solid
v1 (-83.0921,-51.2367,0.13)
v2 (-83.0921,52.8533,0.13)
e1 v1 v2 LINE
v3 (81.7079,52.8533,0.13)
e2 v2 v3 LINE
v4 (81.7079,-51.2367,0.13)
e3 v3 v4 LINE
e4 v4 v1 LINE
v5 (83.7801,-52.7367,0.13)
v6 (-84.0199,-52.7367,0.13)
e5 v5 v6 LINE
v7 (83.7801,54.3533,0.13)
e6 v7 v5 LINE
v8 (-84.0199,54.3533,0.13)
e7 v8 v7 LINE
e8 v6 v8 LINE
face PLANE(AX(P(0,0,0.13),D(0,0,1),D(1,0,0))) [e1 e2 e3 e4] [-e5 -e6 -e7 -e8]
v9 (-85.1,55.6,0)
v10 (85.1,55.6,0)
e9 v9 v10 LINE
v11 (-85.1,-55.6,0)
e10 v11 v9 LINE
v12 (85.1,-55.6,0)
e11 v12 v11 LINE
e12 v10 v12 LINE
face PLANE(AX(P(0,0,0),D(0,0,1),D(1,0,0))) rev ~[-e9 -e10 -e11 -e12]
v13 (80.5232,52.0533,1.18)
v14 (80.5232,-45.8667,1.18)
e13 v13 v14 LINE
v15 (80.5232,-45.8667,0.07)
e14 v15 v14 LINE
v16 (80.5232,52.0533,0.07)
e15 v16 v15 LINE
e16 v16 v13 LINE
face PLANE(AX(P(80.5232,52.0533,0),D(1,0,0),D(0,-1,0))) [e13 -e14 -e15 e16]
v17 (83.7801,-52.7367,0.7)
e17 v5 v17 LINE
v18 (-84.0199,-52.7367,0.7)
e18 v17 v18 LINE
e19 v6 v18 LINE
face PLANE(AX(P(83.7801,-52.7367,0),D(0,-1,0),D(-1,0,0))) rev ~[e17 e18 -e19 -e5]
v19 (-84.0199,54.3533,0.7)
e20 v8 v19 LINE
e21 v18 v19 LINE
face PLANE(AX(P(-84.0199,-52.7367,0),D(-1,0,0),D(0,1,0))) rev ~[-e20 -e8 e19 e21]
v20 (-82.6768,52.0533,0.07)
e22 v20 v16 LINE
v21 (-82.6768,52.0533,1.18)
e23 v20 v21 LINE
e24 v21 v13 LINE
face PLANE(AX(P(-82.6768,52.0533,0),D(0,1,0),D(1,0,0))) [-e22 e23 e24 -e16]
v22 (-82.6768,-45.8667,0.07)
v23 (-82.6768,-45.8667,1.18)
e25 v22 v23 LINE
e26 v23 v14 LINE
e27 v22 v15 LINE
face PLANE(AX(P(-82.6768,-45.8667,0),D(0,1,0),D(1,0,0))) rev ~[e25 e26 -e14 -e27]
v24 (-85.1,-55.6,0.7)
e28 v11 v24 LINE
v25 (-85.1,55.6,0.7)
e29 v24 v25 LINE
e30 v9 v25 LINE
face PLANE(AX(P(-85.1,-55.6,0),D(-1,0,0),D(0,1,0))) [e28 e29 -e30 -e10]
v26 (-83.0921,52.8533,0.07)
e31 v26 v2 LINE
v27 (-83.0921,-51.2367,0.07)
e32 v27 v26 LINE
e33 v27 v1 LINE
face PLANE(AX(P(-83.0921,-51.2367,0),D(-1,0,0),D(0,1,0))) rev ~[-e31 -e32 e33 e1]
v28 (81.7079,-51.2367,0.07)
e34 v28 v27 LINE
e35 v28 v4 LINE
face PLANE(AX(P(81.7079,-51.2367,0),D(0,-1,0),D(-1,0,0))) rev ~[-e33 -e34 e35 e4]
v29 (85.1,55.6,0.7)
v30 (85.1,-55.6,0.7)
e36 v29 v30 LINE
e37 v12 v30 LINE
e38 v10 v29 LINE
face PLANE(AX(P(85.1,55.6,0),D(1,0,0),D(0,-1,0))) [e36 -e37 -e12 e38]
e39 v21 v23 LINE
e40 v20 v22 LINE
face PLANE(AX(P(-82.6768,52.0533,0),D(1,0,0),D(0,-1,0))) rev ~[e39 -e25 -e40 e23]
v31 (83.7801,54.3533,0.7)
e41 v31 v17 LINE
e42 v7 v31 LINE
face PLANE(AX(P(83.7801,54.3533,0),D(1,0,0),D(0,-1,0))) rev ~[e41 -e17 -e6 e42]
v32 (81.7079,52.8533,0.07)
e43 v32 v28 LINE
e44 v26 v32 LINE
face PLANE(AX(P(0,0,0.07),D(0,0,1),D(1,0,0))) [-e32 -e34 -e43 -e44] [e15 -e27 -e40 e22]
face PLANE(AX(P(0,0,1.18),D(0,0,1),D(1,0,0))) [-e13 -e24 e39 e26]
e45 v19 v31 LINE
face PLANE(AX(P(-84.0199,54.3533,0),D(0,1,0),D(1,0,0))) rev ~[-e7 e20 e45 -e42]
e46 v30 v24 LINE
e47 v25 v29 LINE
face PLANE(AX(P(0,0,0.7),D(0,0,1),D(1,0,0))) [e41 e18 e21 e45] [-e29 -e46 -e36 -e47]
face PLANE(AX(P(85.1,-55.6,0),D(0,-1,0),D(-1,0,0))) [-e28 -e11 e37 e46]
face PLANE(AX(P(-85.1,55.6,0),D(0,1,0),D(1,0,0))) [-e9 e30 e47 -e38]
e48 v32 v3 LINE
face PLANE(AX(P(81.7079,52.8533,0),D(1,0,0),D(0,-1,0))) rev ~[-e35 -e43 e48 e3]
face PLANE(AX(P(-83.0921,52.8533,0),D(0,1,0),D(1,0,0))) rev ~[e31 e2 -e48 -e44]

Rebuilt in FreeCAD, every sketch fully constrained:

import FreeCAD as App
import Part
import Sketcher

V = App.Vector


def add_polygon(sketch, points):
    """Adds a closed chain of lines whose ends are joined by coincident constraints."""
    first, n = sketch.GeometryCount, len(points)
    for a, b in zip(points, points[1:] + points[:1]):
        sketch.addGeometry(Part.LineSegment(App.Vector(*a, 0), App.Vector(*b, 0)), False)
    for i in range(n):
        sketch.addConstraint(Sketcher.Constraint("Coincident", first + i, 2, first + (i + 1) % n, 1))

doc = App.newDocument("Part")
body = doc.addObject("PartDesign::Body", "Body")

# Sketch on XY plane
sketch1 = body.newObject("Sketcher::SketchObject", "Sketch")
sketch1.AttachmentSupport = (doc.getObject("XY_Plane"), [""])
sketch1.MapMode = "FlatFace"
add_polygon(sketch1, [(85, 56), (-85, 56), (-85, -56), (85, -56)])  # lines 0-3
add_polygon(sketch1, [(-84, -53), (-84, 54), (84, 54), (84, -53)])  # lines 4-7
sketch1.addConstraint([
    Sketcher.Constraint("Horizontal", 0),
    Sketcher.Constraint("Vertical", 1),
    Sketcher.Constraint("Horizontal", 2),
    Sketcher.Constraint("Vertical", 3),
    Sketcher.Constraint("Vertical", 4),
    Sketcher.Constraint("Horizontal", 5),
    Sketcher.Constraint("Vertical", 6),
    Sketcher.Constraint("Horizontal", 7),
    Sketcher.Constraint("Symmetric", 0, 2, 2, 2, -1, 1),
    Sketcher.Constraint("DistanceX", 0, 2, 0, 1, 170.2),
    Sketcher.Constraint("DistanceY", 1, 2, 1, 1, 111.2),
    Sketcher.Constraint("DistanceY", 4, 1, 4, 2, 107.09),
    Sketcher.Constraint("DistanceX", 5, 1, 5, 2, 167.8),
    Sketcher.Constraint("DistanceX", 4, 2, -1, 1, 84.02),
    Sketcher.Constraint("DistanceY", -1, 1, 4, 2, 54.3533),
])
pad1 = body.newObject("PartDesign::Pad", "Pad")
pad1.Profile = sketch1
pad1.Length = 0.7

# Sketch on XY plane
sketch2 = body.newObject("Sketcher::SketchObject", "Sketch001")
sketch2.AttachmentSupport = (doc.getObject("XY_Plane"), [""])
sketch2.MapMode = "FlatFace"
add_polygon(sketch2, [(84, 54), (-84, 54), (-84, -53), (84, -53)])  # lines 0-3
add_polygon(sketch2, [(-83, -51), (-83, 53), (82, 53), (82, -51)])  # lines 4-7
sketch2.addConstraint([
    Sketcher.Constraint("Horizontal", 0),
    Sketcher.Constraint("Vertical", 1),
    Sketcher.Constraint("Horizontal", 2),
    Sketcher.Constraint("Vertical", 3),
    Sketcher.Constraint("Vertical", 4),
    Sketcher.Constraint("Horizontal", 5),
    Sketcher.Constraint("Vertical", 6),
    Sketcher.Constraint("Horizontal", 7),
    Sketcher.Constraint("DistanceX", 5, 1, 5, 2, 164.8),
    Sketcher.Constraint("DistanceY", 1, 2, 1, 1, 107.09),
    Sketcher.Constraint("DistanceY", 4, 1, 4, 2, 104.09),
    Sketcher.Constraint("DistanceX", 0, 2, 0, 1, 167.8),
    Sketcher.Constraint("DistanceY", 4, 2, 0, 2, 1.5),
    Sketcher.Constraint("DistanceX", 0, 2, -1, 1, 84.02),
    Sketcher.Constraint("DistanceX", 4, 2, -1, 1, 83.092),
    Sketcher.Constraint("DistanceY", -1, 1, 0, 2, 54.3533),
])
pad2 = body.newObject("PartDesign::Pad", "Pad001")
pad2.Profile = sketch2
pad2.Length = 0.13

# Sketch on XY plane
sketch3 = body.newObject("Sketcher::SketchObject", "Sketch002")
sketch3.AttachmentSupport = (doc.getObject("XY_Plane"), [""])
sketch3.MapMode = "FlatFace"
add_polygon(sketch3, [(82, 53), (-83, 53), (-83, -51), (82, -51)])  # lines 0-3
add_polygon(sketch3, [(-83, -46), (-83, 52), (81, 52), (81, -46)])  # lines 4-7
sketch3.addConstraint([
    Sketcher.Constraint("Horizontal", 0),
    Sketcher.Constraint("Vertical", 1),
    Sketcher.Constraint("Horizontal", 2),
    Sketcher.Constraint("Vertical", 3),
    Sketcher.Constraint("Vertical", 4),
    Sketcher.Constraint("Horizontal", 5),
    Sketcher.Constraint("Vertical", 6),
    Sketcher.Constraint("Horizontal", 7),
    Sketcher.Constraint("DistanceX", 0, 2, 0, 1, 164.8),
    Sketcher.Constraint("DistanceX", 5, 1, 5, 2, 163.2),
    Sketcher.Constraint("DistanceY", 1, 2, 1, 1, 104.09),
    Sketcher.Constraint("DistanceY", 4, 1, 4, 2, 97.92),
    Sketcher.Constraint("DistanceY", 4, 2, 0, 2, 0.8),
    Sketcher.Constraint("DistanceX", 0, 2, -1, 1, 83.092),
    Sketcher.Constraint("DistanceY", -1, 1, 0, 2, 52.8533),
    Sketcher.Constraint("DistanceX", 4, 2, -1, 1, 82.6768),
])
pad3 = body.newObject("PartDesign::Pad", "Pad002")
pad3.Profile = sketch3
pad3.Length = 0.07

# Sketch on XY plane
sketch4 = body.newObject("Sketcher::SketchObject", "Sketch003")
sketch4.AttachmentSupport = (doc.getObject("XY_Plane"), [""])
sketch4.MapMode = "FlatFace"
add_polygon(sketch4, [(81, 52), (-83, 52), (-83, -46), (81, -46)])  # lines 0-3
sketch4.addConstraint([
    Sketcher.Constraint("Horizontal", 0),
    Sketcher.Constraint("Vertical", 1),
    Sketcher.Constraint("Horizontal", 2),
    Sketcher.Constraint("Vertical", 3),
    Sketcher.Constraint("DistanceX", 0, 2, 0, 1, 163.2),
    Sketcher.Constraint("DistanceY", 1, 2, 1, 1, 97.92),
    Sketcher.Constraint("DistanceX", 0, 2, -1, 1, 82.6768),
    Sketcher.Constraint("DistanceY", -1, 1, 0, 2, 52.0533),
])
pad4 = body.newObject("PartDesign::Pad", "Pad003")
pad4.Profile = sketch4
pad4.Length = 1.18

doc.recompute()
